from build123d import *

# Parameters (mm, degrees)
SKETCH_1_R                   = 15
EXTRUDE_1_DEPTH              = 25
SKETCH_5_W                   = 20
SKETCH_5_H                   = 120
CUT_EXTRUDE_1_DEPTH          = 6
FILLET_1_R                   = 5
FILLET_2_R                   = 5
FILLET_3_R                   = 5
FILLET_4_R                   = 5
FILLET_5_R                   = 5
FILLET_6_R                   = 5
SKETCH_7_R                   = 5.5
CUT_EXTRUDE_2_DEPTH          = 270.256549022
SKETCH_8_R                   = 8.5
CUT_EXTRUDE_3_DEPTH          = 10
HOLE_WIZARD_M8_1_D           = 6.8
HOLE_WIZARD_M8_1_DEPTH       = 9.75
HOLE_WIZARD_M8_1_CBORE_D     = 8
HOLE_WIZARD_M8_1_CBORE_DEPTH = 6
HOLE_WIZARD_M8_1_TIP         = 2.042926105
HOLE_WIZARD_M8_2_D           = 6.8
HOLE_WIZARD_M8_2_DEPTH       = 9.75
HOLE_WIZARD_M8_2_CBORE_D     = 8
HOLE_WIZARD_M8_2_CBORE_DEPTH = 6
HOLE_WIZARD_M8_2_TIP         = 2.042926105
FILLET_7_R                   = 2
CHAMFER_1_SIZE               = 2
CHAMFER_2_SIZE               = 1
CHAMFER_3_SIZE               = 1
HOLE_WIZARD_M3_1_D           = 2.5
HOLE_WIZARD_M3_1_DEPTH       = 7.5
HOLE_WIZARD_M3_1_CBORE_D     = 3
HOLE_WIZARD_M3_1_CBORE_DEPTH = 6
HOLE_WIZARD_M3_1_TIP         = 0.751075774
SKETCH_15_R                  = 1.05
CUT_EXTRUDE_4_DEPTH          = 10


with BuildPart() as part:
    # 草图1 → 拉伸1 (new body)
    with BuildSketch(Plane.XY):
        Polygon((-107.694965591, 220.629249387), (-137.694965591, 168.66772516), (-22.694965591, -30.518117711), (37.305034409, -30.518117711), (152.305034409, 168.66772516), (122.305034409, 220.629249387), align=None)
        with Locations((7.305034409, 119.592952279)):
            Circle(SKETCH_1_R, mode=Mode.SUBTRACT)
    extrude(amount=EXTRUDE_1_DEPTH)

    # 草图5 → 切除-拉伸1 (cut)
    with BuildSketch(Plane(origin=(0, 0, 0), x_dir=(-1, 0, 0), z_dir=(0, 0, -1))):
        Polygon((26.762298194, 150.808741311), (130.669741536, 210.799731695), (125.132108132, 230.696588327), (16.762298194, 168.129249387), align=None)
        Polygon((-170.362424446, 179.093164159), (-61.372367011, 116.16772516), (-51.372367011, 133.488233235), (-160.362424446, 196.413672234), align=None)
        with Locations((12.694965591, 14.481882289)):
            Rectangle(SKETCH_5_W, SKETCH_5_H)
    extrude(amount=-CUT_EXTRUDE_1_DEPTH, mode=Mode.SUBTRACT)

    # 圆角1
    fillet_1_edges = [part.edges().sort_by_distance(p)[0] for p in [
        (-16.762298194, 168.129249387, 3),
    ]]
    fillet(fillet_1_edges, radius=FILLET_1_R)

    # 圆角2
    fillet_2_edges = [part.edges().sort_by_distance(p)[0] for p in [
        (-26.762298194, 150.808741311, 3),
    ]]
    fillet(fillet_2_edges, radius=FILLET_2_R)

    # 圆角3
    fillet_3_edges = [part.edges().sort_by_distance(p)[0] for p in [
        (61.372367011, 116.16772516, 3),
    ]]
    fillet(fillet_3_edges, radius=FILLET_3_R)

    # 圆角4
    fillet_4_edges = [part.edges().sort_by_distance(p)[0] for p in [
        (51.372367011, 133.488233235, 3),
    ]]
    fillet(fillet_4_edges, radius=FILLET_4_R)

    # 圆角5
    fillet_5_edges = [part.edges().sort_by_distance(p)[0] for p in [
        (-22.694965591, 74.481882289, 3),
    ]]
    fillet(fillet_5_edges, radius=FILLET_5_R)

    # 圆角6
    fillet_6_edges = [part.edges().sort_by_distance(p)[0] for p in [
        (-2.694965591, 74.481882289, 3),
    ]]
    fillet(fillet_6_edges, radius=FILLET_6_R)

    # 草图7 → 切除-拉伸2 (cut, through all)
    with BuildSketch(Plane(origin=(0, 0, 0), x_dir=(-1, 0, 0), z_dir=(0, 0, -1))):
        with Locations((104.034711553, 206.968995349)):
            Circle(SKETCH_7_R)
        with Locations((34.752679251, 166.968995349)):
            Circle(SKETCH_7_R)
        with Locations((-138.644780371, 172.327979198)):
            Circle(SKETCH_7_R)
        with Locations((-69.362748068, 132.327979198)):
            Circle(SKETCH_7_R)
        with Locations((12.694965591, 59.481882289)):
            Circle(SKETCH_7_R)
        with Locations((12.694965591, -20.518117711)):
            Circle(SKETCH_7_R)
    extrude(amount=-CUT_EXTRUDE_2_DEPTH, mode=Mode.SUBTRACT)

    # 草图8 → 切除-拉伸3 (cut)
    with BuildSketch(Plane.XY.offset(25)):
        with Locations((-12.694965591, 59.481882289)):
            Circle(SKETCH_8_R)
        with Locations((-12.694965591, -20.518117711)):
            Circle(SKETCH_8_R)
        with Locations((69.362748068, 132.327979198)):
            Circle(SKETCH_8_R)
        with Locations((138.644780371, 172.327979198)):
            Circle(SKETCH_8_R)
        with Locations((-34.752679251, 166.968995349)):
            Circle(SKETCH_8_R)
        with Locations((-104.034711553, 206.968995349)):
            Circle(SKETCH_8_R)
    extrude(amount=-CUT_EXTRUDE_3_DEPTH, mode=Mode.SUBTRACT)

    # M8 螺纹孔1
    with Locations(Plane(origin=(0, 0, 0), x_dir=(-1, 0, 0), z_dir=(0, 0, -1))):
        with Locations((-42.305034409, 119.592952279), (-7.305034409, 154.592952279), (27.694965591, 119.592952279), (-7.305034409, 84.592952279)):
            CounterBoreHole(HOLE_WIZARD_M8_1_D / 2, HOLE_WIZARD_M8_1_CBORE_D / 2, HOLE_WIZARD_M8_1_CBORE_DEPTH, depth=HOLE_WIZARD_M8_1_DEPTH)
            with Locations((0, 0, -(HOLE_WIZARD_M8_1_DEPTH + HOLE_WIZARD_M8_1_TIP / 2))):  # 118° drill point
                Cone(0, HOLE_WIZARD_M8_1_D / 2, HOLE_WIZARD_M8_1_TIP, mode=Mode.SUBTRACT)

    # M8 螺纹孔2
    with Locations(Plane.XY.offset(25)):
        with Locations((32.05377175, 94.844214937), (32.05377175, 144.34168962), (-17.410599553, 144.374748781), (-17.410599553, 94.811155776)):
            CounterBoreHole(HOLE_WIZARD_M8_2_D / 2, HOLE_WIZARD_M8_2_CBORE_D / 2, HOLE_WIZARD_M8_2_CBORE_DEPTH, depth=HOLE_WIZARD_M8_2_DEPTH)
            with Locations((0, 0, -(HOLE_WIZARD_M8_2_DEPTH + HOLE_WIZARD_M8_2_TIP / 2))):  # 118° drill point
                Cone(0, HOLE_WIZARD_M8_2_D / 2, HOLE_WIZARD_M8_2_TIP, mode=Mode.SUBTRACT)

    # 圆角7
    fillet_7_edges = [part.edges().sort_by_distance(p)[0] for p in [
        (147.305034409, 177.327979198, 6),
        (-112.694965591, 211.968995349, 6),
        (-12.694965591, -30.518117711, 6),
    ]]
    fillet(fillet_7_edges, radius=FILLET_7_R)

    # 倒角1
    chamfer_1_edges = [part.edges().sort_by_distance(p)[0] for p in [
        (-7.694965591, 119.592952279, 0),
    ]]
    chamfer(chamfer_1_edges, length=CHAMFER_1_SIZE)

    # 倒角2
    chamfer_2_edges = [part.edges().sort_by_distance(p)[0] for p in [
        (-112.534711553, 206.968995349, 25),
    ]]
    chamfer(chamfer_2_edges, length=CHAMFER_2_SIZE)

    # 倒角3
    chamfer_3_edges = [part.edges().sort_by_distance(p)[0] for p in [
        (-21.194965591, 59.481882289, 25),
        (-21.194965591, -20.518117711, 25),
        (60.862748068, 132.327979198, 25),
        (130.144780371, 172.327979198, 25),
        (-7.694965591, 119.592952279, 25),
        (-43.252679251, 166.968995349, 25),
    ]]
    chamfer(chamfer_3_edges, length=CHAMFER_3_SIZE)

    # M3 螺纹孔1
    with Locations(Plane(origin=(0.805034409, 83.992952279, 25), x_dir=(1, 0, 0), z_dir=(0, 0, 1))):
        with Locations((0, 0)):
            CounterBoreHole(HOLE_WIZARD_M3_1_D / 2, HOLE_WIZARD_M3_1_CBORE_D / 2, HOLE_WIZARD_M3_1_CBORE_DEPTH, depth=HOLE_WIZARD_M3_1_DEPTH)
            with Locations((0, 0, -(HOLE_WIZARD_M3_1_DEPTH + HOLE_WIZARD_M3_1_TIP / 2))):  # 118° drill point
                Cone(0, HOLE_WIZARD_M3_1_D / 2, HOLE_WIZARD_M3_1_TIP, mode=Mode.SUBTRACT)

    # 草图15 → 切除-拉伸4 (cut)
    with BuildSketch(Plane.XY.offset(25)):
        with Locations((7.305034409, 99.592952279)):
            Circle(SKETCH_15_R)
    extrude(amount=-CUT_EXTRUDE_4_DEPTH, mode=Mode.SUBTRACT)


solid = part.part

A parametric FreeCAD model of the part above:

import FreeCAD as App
import Part
import Sketcher
from FreeCAD import Vector
Q = App.Units.Quantity


def edges_at(feature, points):
    """Names of the edges that pass closest to the given points."""
    edges = feature.Shape.Edges
    near = lambda p: min(range(len(edges)), key=lambda i: edges[i].distToShape(Part.Vertex(*p))[0])
    return sorted({f"Edge{near(p) + 1}" for p in points})

doc = App.newDocument("Part")
body = doc.addObject("PartDesign::Body", "Body")

sketch1 = doc.addObject("Sketcher::SketchObject", "Sketch")
body.addObject(sketch1)
sketch1.AttachmentSupport = (doc.XY_Plane, [""])
sketch1.MapMode = "FlatFace"
sketch1.addGeometry(Part.LineSegment(Vector(-108, 221, 0), Vector(-138, 169, 0)), False)
sketch1.addGeometry(Part.LineSegment(Vector(-138, 169, 0), Vector(-23, -31, 0)), False)
sketch1.addGeometry(Part.LineSegment(Vector(-23, -31, 0), Vector(37, -31, 0)), False)
sketch1.addGeometry(Part.LineSegment(Vector(37, -31, 0), Vector(152, 169, 0)), False)
sketch1.addGeometry(Part.LineSegment(Vector(152, 169, 0), Vector(122, 221, 0)), False)
sketch1.addGeometry(Part.LineSegment(Vector(122, 221, 0), Vector(-108, 221, 0)), False)
sketch1.addGeometry(Part.Circle(Vector(7, 120, 0), Vector(0, 0, 1), 15), False)
sketch1.addConstraint(Sketcher.Constraint("Coincident", 0, 2, 1, 1))
sketch1.addConstraint(Sketcher.Constraint("Coincident", 1, 2, 2, 1))
sketch1.addConstraint(Sketcher.Constraint("Coincident", 2, 2, 3, 1))
sketch1.addConstraint(Sketcher.Constraint("Coincident", 3, 2, 4, 1))
sketch1.addConstraint(Sketcher.Constraint("Coincident", 4, 2, 5, 1))
sketch1.addConstraint(Sketcher.Constraint("Coincident", 5, 2, 0, 1))
sketch1.addConstraint(Sketcher.Constraint("Horizontal", 2))
sketch1.addConstraint(Sketcher.Constraint("Horizontal", 5))
sketch1.addConstraint(Sketcher.Constraint("Parallel", 0, 3))
sketch1.addConstraint(Sketcher.Constraint("Parallel", 1, 4))
sketch1.addConstraint(Sketcher.Constraint("Horizontal", 0, 2, 3, 2))
sketch1.addConstraint(Sketcher.Constraint("Equal", 1, 3))
sketch1.addConstraint(Sketcher.Constraint("Diameter", 6, Q("30 mm")))
sketch1.addConstraint(Sketcher.Constraint("DistanceX", 2, 1, 2, 2, Q("60 mm")))
sketch1.addConstraint(Sketcher.Constraint("DistanceX", 5, 2, 5, 1, Q("230 mm")))
sketch1.addConstraint(Sketcher.Constraint("Angle", 0, Q("-120 deg")))
sketch1.addConstraint(Sketcher.Constraint("Distance", 0, Q("60 mm")))
sketch1.addConstraint(Sketcher.Constraint("DistanceX", 0, 2, 6, 3, Q("145 mm")))
sketch1.addConstraint(Sketcher.Constraint("DistanceY", -1, 1, 4, 2, Q("220.629249 mm")))
sketch1.addConstraint(Sketcher.Constraint("DistanceY", 1, 2, 6, 3, Q("150.11107 mm")))
sketch1.addConstraint(Sketcher.Constraint("DistanceX", -1, 1, 6, 3, Q("7.305034 mm")))
pad1 = doc.addObject("PartDesign::Pad", "Pad")
body.addObject(pad1)
pad1.Profile = sketch1
pad1.Length = 25

sketch2 = doc.addObject("Sketcher::SketchObject", "Sketch001")
body.addObject(sketch2)
sketch2.AttachmentSupport = (doc.XY_Plane, [""])
sketch2.MapMode = "FlatFace"
sketch2.addGeometry(Part.LineSegment(Vector(-27, 151, 0), Vector(-131, 211, 0)), False)
sketch2.addGeometry(Part.LineSegment(Vector(-131, 211, 0), Vector(-125, 231, 0)), False)
sketch2.addGeometry(Part.LineSegment(Vector(-125, 231, 0), Vector(-17, 168, 0)), False)
sketch2.addGeometry(Part.LineSegment(Vector(-17, 168, 0), Vector(-27, 151, 0)), False)
sketch2.addGeometry(Part.LineSegment(Vector(170, 179, 0), Vector(61, 116, 0)), False)
sketch2.addGeometry(Part.LineSegment(Vector(61, 116, 0), Vector(51, 133, 0)), False)
sketch2.addGeometry(Part.LineSegment(Vector(51, 133, 0), Vector(160, 196, 0)), False)
sketch2.addGeometry(Part.LineSegment(Vector(160, 196, 0), Vector(170, 179, 0)), False)
sketch2.addGeometry(Part.LineSegment(Vector(-3, 74, 0), Vector(-3, -46, 0)), False)
sketch2.addGeometry(Part.LineSegment(Vector(-3, -46, 0), Vector(-23, -46, 0)), False)
sketch2.addGeometry(Part.LineSegment(Vector(-23, -46, 0), Vector(-23, 74, 0)), False)
sketch2.addGeometry(Part.LineSegment(Vector(-23, 74, 0), Vector(-3, 74, 0)), False)
sketch2.addConstraint(Sketcher.Constraint("Coincident", 0, 2, 1, 1))
sketch2.addConstraint(Sketcher.Constraint("Coincident", 1, 2, 2, 1))
sketch2.addConstraint(Sketcher.Constraint("Coincident", 2, 2, 3, 1))
sketch2.addConstraint(Sketcher.Constraint("Coincident", 3, 2, 0, 1))
sketch2.addConstraint(Sketcher.Constraint("Coincident", 4, 2, 5, 1))
sketch2.addConstraint(Sketcher.Constraint("Coincident", 5, 2, 6, 1))
sketch2.addConstraint(Sketcher.Constraint("Coincident", 6, 2, 7, 1))
sketch2.addConstraint(Sketcher.Constraint("Coincident", 7, 2, 4, 1))
sketch2.addConstraint(Sketcher.Constraint("Coincident", 8, 2, 9, 1))
sketch2.addConstraint(Sketcher.Constraint("Coincident", 9, 2, 10, 1))
sketch2.addConstraint(Sketcher.Constraint("Coincident", 10, 2, 11, 1))
sketch2.addConstraint(Sketcher.Constraint("Coincident", 11, 2, 8, 1))
sketch2.addConstraint(Sketcher.Constraint("Vertical", 8))
sketch2.addConstraint(Sketcher.Constraint("Horizontal", 9))
sketch2.addConstraint(Sketcher.Constraint("Vertical", 10))
sketch2.addConstraint(Sketcher.Constraint("Horizontal", 11))
sketch2.addConstraint(Sketcher.Constraint("Parallel", 0, 2))
sketch2.addConstraint(Sketcher.Constraint("Perpendicular", 2, 3))
sketch2.addConstraint(Sketcher.Constraint("Perpendicular", 4, 5))
sketch2.addConstraint(Sketcher.Constraint("Perpendicular", 5, 6))
sketch2.addConstraint(Sketcher.Constraint("Perpendicular", 6, 7))
sketch2.addConstraint(Sketcher.Constraint("Equal", 3, 5))
sketch2.addConstraint(Sketcher.Constraint("DistanceX", 9, 2, 9, 1, Q("20 mm")))
sketch2.addConstraint(Sketcher.Constraint("DistanceY", 8, 2, 8, 1, Q("120 mm")))
sketch2.addConstraint(Sketcher.Constraint("Angle", 0, Q("150 deg")))
sketch2.addConstraint(Sketcher.Constraint("Angle", 4, Q("-150 deg")))
sketch2.addConstraint(Sketcher.Constraint("Distance", 3, Q("20 mm")))
sketch2.addConstraint(Sketcher.Constraint("DistanceX", 2, 2, -1, 1, Q("16.762298 mm")))
sketch2.addConstraint(Sketcher.Constraint("DistanceY", 5, 2, 0, 2, Q("77.311498 mm")))
sketch2.addConstraint(Sketcher.Constraint("Distance", 0, Q("119.981981 mm")))
sketch2.addConstraint(Sketcher.Constraint("DistanceY", -1, 1, 0, 2, Q("210.799732 mm")))
sketch2.addConstraint(Sketcher.Constraint("DistanceX", 1, 2, -1, 1, Q("125.132108 mm")))
sketch2.addConstraint(Sketcher.Constraint("DistanceX", 0, 2, 4, 2, Q("192.042109 mm")))
sketch2.addConstraint(Sketcher.Constraint("DistanceY", 5, 2, 6, 2, Q("62.925439 mm")))
sketch2.addConstraint(Sketcher.Constraint("DistanceY", 8, 2, 5, 2, Q("179.006351 mm")))
sketch2.addConstraint(Sketcher.Constraint("DistanceX", 8, 2, 7, 2, Q("173.05739 mm")))
pocket1 = doc.addObject("PartDesign::Pocket", "Pocket")
body.addObject(pocket1)
pocket1.Profile = sketch2
pocket1.Length = 6
pocket1.Reversed = True
doc.recompute()

fillet = doc.addObject("PartDesign::Fillet", "Fillet")
body.addObject(fillet)
fillet.Base = (pocket1, edges_at(pocket1, [(-16.762, 168.129, 3)]))
fillet.Radius = 5
doc.recompute()

fillet2 = doc.addObject("PartDesign::Fillet", "Fillet001")
body.addObject(fillet2)
fillet2.Base = (fillet, edges_at(fillet, [(-26.762, 150.809, 3)]))
fillet2.Radius = 5
doc.recompute()

fillet3 = doc.addObject("PartDesign::Fillet", "Fillet002")
body.addObject(fillet3)
fillet3.Base = (fillet2, edges_at(fillet2, [(61.372, 116.168, 3)]))
fillet3.Radius = 5
doc.recompute()

fillet4 = doc.addObject("PartDesign::Fillet", "Fillet003")
body.addObject(fillet4)
fillet4.Base = (fillet3, edges_at(fillet3, [(51.372, 133.488, 3)]))
fillet4.Radius = 5
doc.recompute()

fillet5 = doc.addObject("PartDesign::Fillet", "Fillet004")
body.addObject(fillet5)
fillet5.Base = (fillet4, edges_at(fillet4, [(-22.695, 74.482, 3)]))
fillet5.Radius = 5
doc.recompute()

fillet6 = doc.addObject("PartDesign::Fillet", "Fillet005")
body.addObject(fillet6)
fillet6.Base = (fillet5, edges_at(fillet5, [(-2.695, 74.482, 3)]))
fillet6.Radius = 5

sketch3 = doc.addObject("Sketcher::SketchObject", "Sketch002")
body.addObject(sketch3)
sketch3.AttachmentSupport = (doc.XY_Plane, [""])
sketch3.MapMode = "FlatFace"
sketch3.addGeometry(Part.Circle(Vector(-104, 207, 0), Vector(0, 0, 1), 6), False)
sketch3.addGeometry(Part.Circle(Vector(-35, 167, 0), Vector(0, 0, 1), 6), False)
sketch3.addGeometry(Part.Circle(Vector(139, 172, 0), Vector(0, 0, 1), 6), False)
sketch3.addGeometry(Part.Circle(Vector(69, 132, 0), Vector(0, 0, 1), 6), False)
sketch3.addGeometry(Part.Circle(Vector(-13, 59, 0), Vector(0, 0, 1), 6), False)
sketch3.addGeometry(Part.Circle(Vector(-13, -21, 0), Vector(0, 0, 1), 6), False)
sketch3.addConstraint(Sketcher.Constraint("Equal", 0, 1))
sketch3.addConstraint(Sketcher.Constraint("Equal", 1, 2))
sketch3.addConstraint(Sketcher.Constraint("Equal", 2, 3))
sketch3.addConstraint(Sketcher.Constraint("Equal", 3, 4))
sketch3.addConstraint(Sketcher.Constraint("Equal", 4, 5))
sketch3.addConstraint(Sketcher.Constraint("Vertical", 4, 3, 5, 3))
sketch3.addConstraint(Sketcher.Constraint("Diameter", 0, Q("11 mm")))
sketch3.addConstraint(Sketcher.Constraint("DistanceY", 1, 3, 0, 3, Q("40 mm")))
sketch3.addConstraint(Sketcher.Constraint("DistanceY", 3, 3, 2, 3, Q("40 mm")))
sketch3.addConstraint(Sketcher.Constraint("DistanceY", 5, 3, 4, 3, Q("80 mm")))
sketch3.addConstraint(Sketcher.Constraint("DistanceX", 0, 3, -1, 1, Q("104.034712 mm")))
sketch3.addConstraint(Sketcher.Constraint("DistanceX", 1, 3, -1, 1, Q("34.752679 mm")))
sketch3.addConstraint(Sketcher.Constraint("DistanceX", -1, 1, 2, 3, Q("138.64478 mm")))
sketch3.addConstraint(Sketcher.Constraint("DistanceY", -1, 1, 2, 3, Q("172.327979 mm")))
sketch3.addConstraint(Sketcher.Constraint("DistanceX", -1, 1, 3, 3, Q("69.362748 mm")))
sketch3.addConstraint(Sketcher.Constraint("DistanceY", -1, 1, 0, 3, Q("206.968995 mm")))
sketch3.addConstraint(Sketcher.Constraint("DistanceX", 4, 3, -1, 1, Q("12.694966 mm")))
sketch3.addConstraint(Sketcher.Constraint("DistanceY", -1, 1, 4, 3, Q("59.481882 mm")))
pocket2 = doc.addObject("PartDesign::Pocket", "Pocket001")
body.addObject(pocket2)
pocket2.Profile = sketch3
pocket2.Type = "ThroughAll"
pocket2.Reversed = True

sketch4 = doc.addObject("Sketcher::SketchObject", "Sketch003")
body.addObject(sketch4)
sketch4.AttachmentSupport = (doc.XY_Plane, [""])
sketch4.MapMode = "FlatFace"
sketch4.AttachmentOffset = App.Placement(Vector(0, 0, 25), App.Rotation())
sketch4.addGeometry(Part.Circle(Vector(-13, 59, 0), Vector(0, 0, 1), 8), False)
sketch4.addGeometry(Part.Circle(Vector(-13, -21, 0), Vector(0, 0, 1), 8), False)
sketch4.addGeometry(Part.Circle(Vector(69, 132, 0), Vector(0, 0, 1), 8), False)
sketch4.addGeometry(Part.Circle(Vector(139, 172, 0), Vector(0, 0, 1), 8), False)
sketch4.addGeometry(Part.Circle(Vector(-35, 167, 0), Vector(0, 0, 1), 8), False)
sketch4.addGeometry(Part.Circle(Vector(-104, 207, 0), Vector(0, 0, 1), 8), False)
sketch4.addConstraint(Sketcher.Constraint("Equal", 0, 1))
sketch4.addConstraint(Sketcher.Constraint("Equal", 1, 2))
sketch4.addConstraint(Sketcher.Constraint("Equal", 2, 3))
sketch4.addConstraint(Sketcher.Constraint("Equal", 3, 4))
sketch4.addConstraint(Sketcher.Constraint("Equal", 4, 5))
sketch4.addConstraint(Sketcher.Constraint("Vertical", 0, 3, 1, 3))
sketch4.addConstraint(Sketcher.Constraint("Diameter", 0, Q("17 mm")))
sketch4.addConstraint(Sketcher.Constraint("DistanceY", 1, 3, 0, 3, Q("80 mm")))
sketch4.addConstraint(Sketcher.Constraint("DistanceY", 2, 3, 3, 3, Q("40 mm")))
sketch4.addConstraint(Sketcher.Constraint("DistanceY", 4, 3, 5, 3, Q("40 mm")))
sketch4.addConstraint(Sketcher.Constraint("DistanceX", -1, 1, 2, 3, Q("69.362748 mm")))
sketch4.addConstraint(Sketcher.Constraint("DistanceY", -1, 1, 2, 3, Q("132.327979 mm")))
sketch4.addConstraint(Sketcher.Constraint("DistanceX", -1, 1, 3, 3, Q("138.64478 mm")))
sketch4.addConstraint(Sketcher.Constraint("DistanceX", 4, 3, -1, 1, Q("34.752679 mm")))
sketch4.addConstraint(Sketcher.Constraint("DistanceX", 5, 3, -1, 1, Q("104.034712 mm")))
sketch4.addConstraint(Sketcher.Constraint("DistanceX", 0, 3, -1, 1, Q("12.694966 mm")))
sketch4.addConstraint(Sketcher.Constraint("DistanceY", -1, 1, 0, 3, Q("59.481882 mm")))
sketch4.addConstraint(Sketcher.Constraint("DistanceY", -1, 1, 4, 3, Q("166.968995 mm")))
pocket3 = doc.addObject("PartDesign::Pocket", "Pocket002")
body.addObject(pocket3)
pocket3.Profile = sketch4
pocket3.Length = 10

sketch5 = doc.addObject("Sketcher::SketchObject", "Sketch004")
body.addObject(sketch5)
sketch5.AttachmentSupport = (doc.XY_Plane, [""])
sketch5.MapMode = "FlatFace"
sketch5.addGeometry(Part.Circle(Vector(42.3, 119.6, 0), Vector(0, 0, 1), 3.4), False)
sketch5.addGeometry(Part.Circle(Vector(7.3, 154.6, 0), Vector(0, 0, 1), 3.4), False)
sketch5.addGeometry(Part.Circle(Vector(-27.7, 119.6, 0), Vector(0, 0, 1), 3.4), False)
sketch5.addGeometry(Part.Circle(Vector(7.3, 84.6, 0), Vector(0, 0, 1), 3.4), False)
sketch5.addConstraint(Sketcher.Constraint("Equal", 0, 1))
sketch5.addConstraint(Sketcher.Constraint("Equal", 1, 2))
sketch5.addConstraint(Sketcher.Constraint("Equal", 2, 3))
sketch5.addConstraint(Sketcher.Constraint("Horizontal", 0, 3, 2, 3))
sketch5.addConstraint(Sketcher.Constraint("Vertical", 1, 3, 3, 3))
sketch5.addConstraint(Sketcher.Constraint("Diameter", 0, Q("6.8 mm")))
sketch5.addConstraint(Sketcher.Constraint("DistanceX", 1, 3, 0, 3, Q("35 mm")))
sketch5.addConstraint(Sketcher.Constraint("DistanceY", 0, 3, 1, 3, Q("35 mm")))
sketch5.addConstraint(Sketcher.Constraint("DistanceX", 2, 3, 1, 3, Q("35 mm")))
sketch5.addConstraint(Sketcher.Constraint("DistanceY", 3, 3, 0, 3, Q("35 mm")))
sketch5.addConstraint(Sketcher.Constraint("DistanceX", -1, 1, 0, 3, Q("42.305034 mm")))
sketch5.addConstraint(Sketcher.Constraint("DistanceY", -1, 1, 0, 3, Q("119.592952 mm")))
doc.recompute()
hole = doc.addObject("PartDesign::Hole", "Hole")
body.addObject(hole)
hole.Profile = sketch5
hole.ThreadType = "None"
hole.Diameter = 6.8
hole.DepthType = "Dimension"
hole.Depth = 9.75
hole.DrillPoint = "Angled"
hole.DrillPointAngle = 118
hole.HoleCutType = "Counterbore"
hole.HoleCutDiameter = 8
hole.HoleCutDepth = 6
hole.Reversed = True

sketch6 = doc.addObject("Sketcher::SketchObject", "Sketch005")
body.addObject(sketch6)
sketch6.AttachmentSupport = (doc.XY_Plane, [""])
sketch6.MapMode = "FlatFace"
sketch6.AttachmentOffset = App.Placement(Vector(0, 0, 25), App.Rotation())
sketch6.addGeometry(Part.Circle(Vector(32.1, 94.8, 0), Vector(0, 0, 1), 3.4), False)
sketch6.addGeometry(Part.Circle(Vector(32.1, 144.3, 0), Vector(0, 0, 1), 3.4), False)
sketch6.addGeometry(Part.Circle(Vector(-17.4, 144.4, 0), Vector(0, 0, 1), 3.4), False)
sketch6.addGeometry(Part.Circle(Vector(-17.4, 94.8, 0), Vector(0, 0, 1), 3.4), False)
sketch6.addConstraint(Sketcher.Constraint("Equal", 0, 1))
sketch6.addConstraint(Sketcher.Constraint("Equal", 1, 2))
sketch6.addConstraint(Sketcher.Constraint("Equal", 2, 3))
sketch6.addConstraint(Sketcher.Constraint("Vertical", 0, 3, 1, 3))
sketch6.addConstraint(Sketcher.Constraint("Vertical", 2, 3, 3, 3))
sketch6.addConstraint(Sketcher.Constraint("Diameter", 0, Q("6.8 mm")))
sketch6.addConstraint(Sketcher.Constraint("DistanceX", 2, 3, -1, 1, Q("17.4106 mm")))
sketch6.addConstraint(Sketcher.Constraint("DistanceX", -1, 1, 0, 3, Q("32.053772 mm")))
sketch6.addConstraint(Sketcher.Constraint("DistanceY", -1, 1, 1, 3, Q("144.34169 mm")))
sketch6.addConstraint(Sketcher.Constraint("DistanceY", -1, 1, 2, 3, Q("144.374749 mm")))
sketch6.addConstraint(Sketcher.Constraint("DistanceY", 3, 3, 0, 3, Q("0.033059 mm")))
sketch6.addConstraint(Sketcher.Constraint("DistanceY", -1, 1, 0, 3, Q("94.844215 mm")))
doc.recompute()
hole2 = doc.addObject("PartDesign::Hole", "Hole001")
body.addObject(hole2)
hole2.Profile = sketch6
hole2.ThreadType = "None"
hole2.Diameter = 6.8
hole2.DepthType = "Dimension"
hole2.Depth = 9.75
hole2.DrillPoint = "Angled"
hole2.DrillPointAngle = 118
hole2.HoleCutType = "Counterbore"
hole2.HoleCutDiameter = 8
hole2.HoleCutDepth = 6
doc.recompute()

fillet7 = doc.addObject("PartDesign::Fillet", "Fillet006")
body.addObject(fillet7)
fillet7.Base = (hole2, edges_at(hole2, [(147.305, 177.328, 6), (-112.695, 211.969, 6), (-12.695, -30.518, 6)]))
fillet7.Radius = 2
doc.recompute()

chamfer = doc.addObject("PartDesign::Chamfer", "Chamfer")
body.addObject(chamfer)
chamfer.Base = (fillet7, edges_at(fillet7, [(-7.695, 119.593, 0)]))
chamfer.Size = 2
doc.recompute()

chamfer2 = doc.addObject("PartDesign::Chamfer", "Chamfer001")
body.addObject(chamfer2)
chamfer2.Base = (chamfer, edges_at(chamfer, [(-112.535, 206.969, 25)]))
chamfer2.Size = 1
doc.recompute()

chamfer3 = doc.addObject("PartDesign::Chamfer", "Chamfer002")
body.addObject(chamfer3)
chamfer3.Base = (chamfer2, edges_at(chamfer2, [
    (-21.195, 59.482, 25),
    (-21.195, -20.518, 25),
    (60.863, 132.328, 25),
    (130.145, 172.328, 25),
    (-7.695, 119.593, 25),
    (-43.253, 166.969, 25),
]))
chamfer3.Size = 1

sketch7 = doc.addObject("Sketcher::SketchObject", "Sketch006")
body.addObject(sketch7)
sketch7.AttachmentSupport = (doc.XY_Plane, [""])
sketch7.MapMode = "FlatFace"
sketch7.AttachmentOffset = App.Placement(Vector(0, 0, 25), App.Rotation())
sketch7.addGeometry(Part.Circle(Vector(0.8, 84, 0), Vector(0, 0, 1), 1.2), False)
sketch7.addConstraint(Sketcher.Constraint("Diameter", 0, Q("2.5 mm")))
sketch7.addConstraint(Sketcher.Constraint("DistanceX", -1, 1, 0, 3, Q("0.805034 mm")))
sketch7.addConstraint(Sketcher.Constraint("DistanceY", -1, 1, 0, 3, Q("83.992952 mm")))
doc.recompute()
hole3 = doc.addObject("PartDesign::Hole", "Hole002")
body.addObject(hole3)
hole3.Profile = sketch7
hole3.ThreadType = "None"
hole3.Diameter = 2.5
hole3.DepthType = "Dimension"
hole3.Depth = 7.5
hole3.DrillPoint = "Angled"
hole3.DrillPointAngle = 118
hole3.HoleCutType = "Counterbore"
hole3.HoleCutDiameter = 3
hole3.HoleCutDepth = 6

sketch8 = doc.addObject("Sketcher::SketchObject", "Sketch007")
body.addObject(sketch8)
sketch8.AttachmentSupport = (doc.XY_Plane, [""])
sketch8.MapMode = "FlatFace"
sketch8.AttachmentOffset = App.Placement(Vector(0, 0, 25), App.Rotation())
sketch8.addGeometry(Part.Circle(Vector(7.3, 99.6, 0), Vector(0, 0, 1), 1.1), False)
sketch8.addConstraint(Sketcher.Constraint("Diameter", 0, Q("2.1 mm")))
sketch8.addConstraint(Sketcher.Constraint("DistanceX", -1, 1, 0, 3, Q("7.305034 mm")))
sketch8.addConstraint(Sketcher.Constraint("DistanceY", -1, 1, 0, 3, Q("99.592952 mm")))
pocket4 = doc.addObject("PartDesign::Pocket", "Pocket003")
body.addObject(pocket4)
pocket4.Profile = sketch8
pocket4.Length = 10

doc.recompute()
